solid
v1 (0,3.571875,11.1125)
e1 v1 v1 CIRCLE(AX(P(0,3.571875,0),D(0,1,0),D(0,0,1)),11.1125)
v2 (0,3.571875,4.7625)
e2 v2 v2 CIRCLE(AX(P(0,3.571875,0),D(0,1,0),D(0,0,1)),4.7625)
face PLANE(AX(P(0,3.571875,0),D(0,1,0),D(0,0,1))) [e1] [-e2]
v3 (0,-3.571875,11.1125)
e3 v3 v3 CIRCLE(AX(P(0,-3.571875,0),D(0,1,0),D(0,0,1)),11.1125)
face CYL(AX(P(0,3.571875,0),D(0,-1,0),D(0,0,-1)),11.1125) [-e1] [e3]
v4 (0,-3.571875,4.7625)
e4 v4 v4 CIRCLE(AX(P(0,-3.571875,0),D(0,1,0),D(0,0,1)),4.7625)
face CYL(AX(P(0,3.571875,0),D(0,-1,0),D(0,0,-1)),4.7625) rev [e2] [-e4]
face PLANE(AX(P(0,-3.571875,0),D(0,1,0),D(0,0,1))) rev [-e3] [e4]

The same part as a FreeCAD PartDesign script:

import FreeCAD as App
import Part
import Sketcher
from FreeCAD import Vector
Q = App.Units.Quantity

doc = App.newDocument("Part")
body = doc.addObject("PartDesign::Body", "Body")

sketch1 = body.newObject("Sketcher::SketchObject", "Sketch")
sketch1.AttachmentSupport = (doc.getObject("XZ_Plane"), [""])
sketch1.MapMode = "FlatFace"
sketch1.addGeometry([
    Part.Circle(Vector(0, 0, 0), Vector(0, 0, 1), 11.1),
    Part.Circle(Vector(0, 0, 0), Vector(0, 0, 1), 4.8),
], False)
sketch1.addConstraint([
    Sketcher.Constraint("Coincident", 0, 3, -1, 1),
    Sketcher.Constraint("Coincident", 1, 3, -1, 1),
    Sketcher.Constraint("Diameter", 0, Q("0.875 in")),
    Sketcher.Constraint("Diameter", 1, Q("0.375 in")),
])
pad1 = body.newObject("PartDesign::Pad", "Pad")
pad1.Profile = sketch1
pad1.Length = Q("0.28125 in")
pad1.Midplane = True

doc.recompute()
